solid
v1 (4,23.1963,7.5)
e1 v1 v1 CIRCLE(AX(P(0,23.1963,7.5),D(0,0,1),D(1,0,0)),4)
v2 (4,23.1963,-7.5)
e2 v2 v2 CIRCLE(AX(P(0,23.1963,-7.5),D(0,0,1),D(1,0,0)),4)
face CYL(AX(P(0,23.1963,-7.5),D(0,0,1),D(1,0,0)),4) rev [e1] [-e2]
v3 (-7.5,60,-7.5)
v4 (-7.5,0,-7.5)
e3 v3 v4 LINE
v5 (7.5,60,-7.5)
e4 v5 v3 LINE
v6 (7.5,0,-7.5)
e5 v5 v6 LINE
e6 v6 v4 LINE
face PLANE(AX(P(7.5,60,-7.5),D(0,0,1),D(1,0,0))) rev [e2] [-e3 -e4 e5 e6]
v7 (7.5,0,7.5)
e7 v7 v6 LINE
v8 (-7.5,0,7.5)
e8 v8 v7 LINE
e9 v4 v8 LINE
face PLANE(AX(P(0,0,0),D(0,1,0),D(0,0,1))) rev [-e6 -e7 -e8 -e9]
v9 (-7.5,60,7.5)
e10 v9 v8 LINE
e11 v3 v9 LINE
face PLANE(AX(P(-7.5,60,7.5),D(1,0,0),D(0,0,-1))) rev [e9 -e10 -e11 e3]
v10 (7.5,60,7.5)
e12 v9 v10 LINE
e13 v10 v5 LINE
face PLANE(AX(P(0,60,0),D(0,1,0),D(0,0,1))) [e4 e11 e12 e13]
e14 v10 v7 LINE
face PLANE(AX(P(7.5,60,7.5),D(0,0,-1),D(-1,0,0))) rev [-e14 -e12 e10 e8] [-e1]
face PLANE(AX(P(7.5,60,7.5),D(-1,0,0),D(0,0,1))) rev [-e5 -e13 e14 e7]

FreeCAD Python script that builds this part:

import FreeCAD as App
import Part
import Sketcher

doc = App.newDocument("Part")
body = doc.addObject("PartDesign::Body", "Body")

sketch1 = body.newObject("Sketcher::SketchObject", "Sketch")
sketch1.AttachmentSupport = (doc.getObject("XZ_Plane"), [""])
sketch1.MapMode = "FlatFace"
sketch1.addGeometry(Part.LineSegment(App.Vector(-7.5, -7.5, 0), App.Vector(-7.5, 7.5, 0)), False)
sketch1.addGeometry(Part.LineSegment(App.Vector(-7.5, 7.5, 0), App.Vector(7.5, 7.5, 0)), False)
sketch1.addGeometry(Part.LineSegment(App.Vector(7.5, 7.5, 0), App.Vector(7.5, -7.5, 0)), False)
sketch1.addGeometry(Part.LineSegment(App.Vector(7.5, -7.5, 0), App.Vector(-7.5, -7.5, 0)), False)
sketch1.addConstraint(Sketcher.Constraint("Coincident", 0, 2, 1, 1))
sketch1.addConstraint(Sketcher.Constraint("Coincident", 1, 2, 2, 1))
sketch1.addConstraint(Sketcher.Constraint("Coincident", 2, 2, 3, 1))
sketch1.addConstraint(Sketcher.Constraint("Coincident", 3, 2, 0, 1))
sketch1.addConstraint(Sketcher.Constraint("Vertical", 0))
sketch1.addConstraint(Sketcher.Constraint("Horizontal", 1))
sketch1.addConstraint(Sketcher.Constraint("Vertical", 2))
sketch1.addConstraint(Sketcher.Constraint("Horizontal", 3))
sketch1.addConstraint(Sketcher.Constraint("Symmetric", 0, 2, 2, 2, -1, 1))
sketch1.addConstraint(Sketcher.Constraint("Equal", 3, 0))
sketch1.addConstraint(Sketcher.Constraint("DistanceX", 1, 1, 1, 2, 15.0))
pad1 = body.newObject("PartDesign::Pad", "Pad")
pad1.Profile = sketch1
pad1.Length = 60
pad1.Reversed = True

sketch2 = body.newObject("Sketcher::SketchObject", "Sketch001")
sketch2.AttachmentSupport = (doc.getObject("XY_Plane"), [""])
sketch2.MapMode = "FlatFace"
sketch2.AttachmentOffset = App.Placement(App.Vector(0, 0, 7.5), App.Rotation())
sketch2.addGeometry(Part.Circle(App.Vector(0, 23.1963, 0), App.Vector(0, 0, 1), 4), False)
sketch2.addConstraint(Sketcher.Constraint("PointOnObject", 0, 3, -2))
sketch2.addConstraint(Sketcher.Constraint("Diameter", 0, 8.0))
sketch2.addConstraint(Sketcher.Constraint("DistanceY", -1, 1, 0, 3, 23.1963))
pocket1 = body.newObject("PartDesign::Pocket", "Pocket")
pocket1.Profile = sketch2
pocket1.Type = "ThroughAll"

doc.recompute()
